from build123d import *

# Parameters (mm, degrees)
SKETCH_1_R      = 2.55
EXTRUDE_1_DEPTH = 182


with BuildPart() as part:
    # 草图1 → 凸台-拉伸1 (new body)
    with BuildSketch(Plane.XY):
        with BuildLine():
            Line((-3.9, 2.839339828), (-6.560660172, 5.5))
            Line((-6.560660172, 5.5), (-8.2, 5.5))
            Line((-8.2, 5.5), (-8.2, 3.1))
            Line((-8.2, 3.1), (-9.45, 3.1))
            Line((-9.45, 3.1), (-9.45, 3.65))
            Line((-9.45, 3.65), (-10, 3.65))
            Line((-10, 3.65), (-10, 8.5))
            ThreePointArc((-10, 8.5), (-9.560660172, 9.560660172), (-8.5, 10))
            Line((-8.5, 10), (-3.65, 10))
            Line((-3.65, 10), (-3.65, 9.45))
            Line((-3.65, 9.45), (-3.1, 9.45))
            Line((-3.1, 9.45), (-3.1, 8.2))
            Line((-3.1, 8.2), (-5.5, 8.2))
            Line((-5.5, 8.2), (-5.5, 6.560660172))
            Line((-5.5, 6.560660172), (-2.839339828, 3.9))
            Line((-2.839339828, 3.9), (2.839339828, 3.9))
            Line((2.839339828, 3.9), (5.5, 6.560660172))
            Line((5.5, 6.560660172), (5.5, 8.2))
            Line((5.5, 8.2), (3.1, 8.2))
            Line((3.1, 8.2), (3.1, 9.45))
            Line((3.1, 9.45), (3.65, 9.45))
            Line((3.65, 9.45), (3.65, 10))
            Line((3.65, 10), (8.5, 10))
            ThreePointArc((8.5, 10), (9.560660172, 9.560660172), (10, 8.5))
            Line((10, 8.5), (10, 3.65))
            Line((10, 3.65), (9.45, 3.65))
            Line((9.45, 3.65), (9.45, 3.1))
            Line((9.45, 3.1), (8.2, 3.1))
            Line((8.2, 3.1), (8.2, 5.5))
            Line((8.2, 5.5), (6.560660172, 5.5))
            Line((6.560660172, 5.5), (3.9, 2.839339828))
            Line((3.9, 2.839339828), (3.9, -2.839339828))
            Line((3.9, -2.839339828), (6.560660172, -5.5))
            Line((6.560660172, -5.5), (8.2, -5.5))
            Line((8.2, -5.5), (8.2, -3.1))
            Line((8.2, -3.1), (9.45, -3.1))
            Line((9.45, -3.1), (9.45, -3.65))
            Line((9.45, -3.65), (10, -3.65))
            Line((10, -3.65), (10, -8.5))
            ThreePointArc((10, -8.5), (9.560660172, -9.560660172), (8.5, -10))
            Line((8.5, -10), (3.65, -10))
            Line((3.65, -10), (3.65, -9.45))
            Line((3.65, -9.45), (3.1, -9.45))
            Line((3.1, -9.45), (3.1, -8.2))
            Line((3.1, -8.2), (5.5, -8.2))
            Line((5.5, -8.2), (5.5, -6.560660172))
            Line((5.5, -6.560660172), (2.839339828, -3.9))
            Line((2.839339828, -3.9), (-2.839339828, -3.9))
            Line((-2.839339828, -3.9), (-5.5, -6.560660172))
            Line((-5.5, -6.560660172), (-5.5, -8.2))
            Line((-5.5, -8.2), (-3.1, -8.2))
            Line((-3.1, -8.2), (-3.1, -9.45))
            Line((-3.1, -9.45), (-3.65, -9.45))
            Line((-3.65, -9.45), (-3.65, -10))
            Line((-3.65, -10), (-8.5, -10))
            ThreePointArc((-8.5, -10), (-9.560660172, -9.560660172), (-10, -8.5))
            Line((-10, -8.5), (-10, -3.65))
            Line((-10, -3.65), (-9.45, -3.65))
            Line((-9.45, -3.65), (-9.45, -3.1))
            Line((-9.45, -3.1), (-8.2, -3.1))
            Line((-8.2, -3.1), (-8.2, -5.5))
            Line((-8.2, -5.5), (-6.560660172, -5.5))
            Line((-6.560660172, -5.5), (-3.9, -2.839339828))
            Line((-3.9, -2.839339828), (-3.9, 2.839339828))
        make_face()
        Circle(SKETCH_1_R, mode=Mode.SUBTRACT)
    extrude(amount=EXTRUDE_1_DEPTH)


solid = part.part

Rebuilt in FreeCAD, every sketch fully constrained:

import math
import FreeCAD as App
import Part
import Sketcher
from FreeCAD import Vector
Q = App.Units.Quantity

doc = App.newDocument("Part")
body = doc.addObject("PartDesign::Body", "Body")

# Sketch on XY plane
sketch1 = body.newObject("Sketcher::SketchObject", "Sketch")
sketch1.AttachmentSupport = (doc.getObject("XY_Plane"), [""])
sketch1.MapMode = "FlatFace"
sketch1.addGeometry([
    Part.LineSegment(Vector(-6.6, 5.5, 0), Vector(-3.9, 2.8, 0)),  # 0
    Part.LineSegment(Vector(-3.9, 2.8, 0), Vector(-3.9, -2.8, 0)),  # 1
    Part.LineSegment(Vector(-3.9, -2.8, 0), Vector(-6.6, -5.5, 0)),  # 2
    Part.LineSegment(Vector(-6.6, -5.5, 0), Vector(-8.2, -5.5, 0)),  # 3
    Part.LineSegment(Vector(-8.2, -5.5, 0), Vector(-8.2, -3.1, 0)),  # 4
    Part.LineSegment(Vector(-8.2, -3.1, 0), Vector(-9.4, -3.1, 0)),  # 5
    Part.LineSegment(Vector(-9.4, -3.1, 0), Vector(-9.4, -3.6, 0)),  # 6
    Part.LineSegment(Vector(-9.4, -3.6, 0), Vector(-10, -3.6, 0)),  # 7
    Part.LineSegment(Vector(-10, -3.6, 0), Vector(-10, -8.5, 0)),  # 8
    Part.ArcOfCircle(Part.Circle(Vector(-8.5, -8.5, 0), Vector(0, 0, 1), 1.5), math.radians(180), math.radians(270)),  # 9
    Part.LineSegment(Vector(-8.5, -10, 0), Vector(-3.6, -10, 0)),  # 10
    Part.LineSegment(Vector(-3.6, -10, 0), Vector(-3.6, -9.4, 0)),  # 11
    Part.LineSegment(Vector(-3.6, -9.4, 0), Vector(-3.1, -9.4, 0)),  # 12
    Part.LineSegment(Vector(-3.1, -9.4, 0), Vector(-3.1, -8.2, 0)),  # 13
    Part.LineSegment(Vector(-3.1, -8.2, 0), Vector(-5.5, -8.2, 0)),  # 14
    Part.LineSegment(Vector(-5.5, -8.2, 0), Vector(-5.5, -6.6, 0)),  # 15
    Part.LineSegment(Vector(-5.5, -6.6, 0), Vector(-2.8, -3.9, 0)),  # 16
    Part.LineSegment(Vector(-2.8, -3.9, 0), Vector(2.8, -3.9, 0)),  # 17
    Part.LineSegment(Vector(2.8, -3.9, 0), Vector(5.5, -6.6, 0)),  # 18
    Part.LineSegment(Vector(5.5, -6.6, 0), Vector(5.5, -8.2, 0)),  # 19
    Part.LineSegment(Vector(5.5, -8.2, 0), Vector(3.1, -8.2, 0)),  # 20
    Part.LineSegment(Vector(3.1, -8.2, 0), Vector(3.1, -9.4, 0)),  # 21
    Part.LineSegment(Vector(3.1, -9.4, 0), Vector(3.6, -9.4, 0)),  # 22
    Part.LineSegment(Vector(3.6, -9.4, 0), Vector(3.6, -10, 0)),  # 23
    Part.LineSegment(Vector(3.6, -10, 0), Vector(8.5, -10, 0)),  # 24
    Part.ArcOfCircle(Part.Circle(Vector(8.5, -8.5, 0), Vector(0, 0, 1), 1.5), math.radians(-90), math.radians(0)),  # 25
    Part.LineSegment(Vector(10, -8.5, 0), Vector(10, -3.6, 0)),  # 26
    Part.LineSegment(Vector(10, -3.6, 0), Vector(9.4, -3.6, 0)),  # 27
    Part.LineSegment(Vector(9.4, -3.6, 0), Vector(9.4, -3.1, 0)),  # 28
    Part.LineSegment(Vector(9.4, -3.1, 0), Vector(8.2, -3.1, 0)),  # 29
    Part.LineSegment(Vector(8.2, -3.1, 0), Vector(8.2, -5.5, 0)),  # 30
    Part.LineSegment(Vector(8.2, -5.5, 0), Vector(6.6, -5.5, 0)),  # 31
    Part.LineSegment(Vector(6.6, -5.5, 0), Vector(3.9, -2.8, 0)),  # 32
    Part.LineSegment(Vector(3.9, -2.8, 0), Vector(3.9, 2.8, 0)),  # 33
    Part.LineSegment(Vector(3.9, 2.8, 0), Vector(6.6, 5.5, 0)),  # 34
    Part.LineSegment(Vector(6.6, 5.5, 0), Vector(8.2, 5.5, 0)),  # 35
    Part.LineSegment(Vector(8.2, 5.5, 0), Vector(8.2, 3.1, 0)),  # 36
    Part.LineSegment(Vector(8.2, 3.1, 0), Vector(9.4, 3.1, 0)),  # 37
    Part.LineSegment(Vector(9.4, 3.1, 0), Vector(9.4, 3.6, 0)),  # 38
    Part.LineSegment(Vector(9.4, 3.6, 0), Vector(10, 3.6, 0)),  # 39
    Part.LineSegment(Vector(10, 3.6, 0), Vector(10, 8.5, 0)),  # 40
    Part.ArcOfCircle(Part.Circle(Vector(8.5, 8.5, 0), Vector(0, 0, 1), 1.5), math.radians(0), math.radians(90)),  # 41
    Part.LineSegment(Vector(8.5, 10, 0), Vector(3.6, 10, 0)),  # 42
    Part.LineSegment(Vector(3.6, 10, 0), Vector(3.6, 9.4, 0)),  # 43
    Part.LineSegment(Vector(3.6, 9.4, 0), Vector(3.1, 9.4, 0)),  # 44
    Part.LineSegment(Vector(3.1, 9.4, 0), Vector(3.1, 8.2, 0)),  # 45
    Part.LineSegment(Vector(3.1, 8.2, 0), Vector(5.5, 8.2, 0)),  # 46
    Part.LineSegment(Vector(5.5, 8.2, 0), Vector(5.5, 6.6, 0)),  # 47
    Part.LineSegment(Vector(5.5, 6.6, 0), Vector(2.8, 3.9, 0)),  # 48
    Part.LineSegment(Vector(2.8, 3.9, 0), Vector(-2.8, 3.9, 0)),  # 49
    Part.LineSegment(Vector(-2.8, 3.9, 0), Vector(-5.5, 6.6, 0)),  # 50
    Part.LineSegment(Vector(-5.5, 6.6, 0), Vector(-5.5, 8.2, 0)),  # 51
    Part.LineSegment(Vector(-5.5, 8.2, 0), Vector(-3.1, 8.2, 0)),  # 52
    Part.LineSegment(Vector(-3.1, 8.2, 0), Vector(-3.1, 9.4, 0)),  # 53
    Part.LineSegment(Vector(-3.1, 9.4, 0), Vector(-3.6, 9.4, 0)),  # 54
    Part.LineSegment(Vector(-3.6, 9.4, 0), Vector(-3.6, 10, 0)),  # 55
    Part.LineSegment(Vector(-3.6, 10, 0), Vector(-8.5, 10, 0)),  # 56
    Part.ArcOfCircle(Part.Circle(Vector(-8.5, 8.5, 0), Vector(0, 0, 1), 1.5), math.radians(90), math.radians(180)),  # 57
    Part.LineSegment(Vector(-10, 8.5, 0), Vector(-10, 3.6, 0)),  # 58
    Part.LineSegment(Vector(-10, 3.6, 0), Vector(-9.4, 3.6, 0)),  # 59
    Part.LineSegment(Vector(-9.4, 3.6, 0), Vector(-9.4, 3.1, 0)),  # 60
    Part.LineSegment(Vector(-9.4, 3.1, 0), Vector(-8.2, 3.1, 0)),  # 61
    Part.LineSegment(Vector(-8.2, 3.1, 0), Vector(-8.2, 5.5, 0)),  # 62
    Part.LineSegment(Vector(-8.2, 5.5, 0), Vector(-6.6, 5.5, 0)),  # 63
    Part.Circle(Vector(0, 0, 0), Vector(0, 0, 1), 2.5),  # 64
], False)
sketch1.addConstraint([
    Sketcher.Constraint("Coincident", 0, 2, 1, 1),
    Sketcher.Constraint("Coincident", 1, 2, 2, 1),
    Sketcher.Constraint("Coincident", 2, 2, 3, 1),
    Sketcher.Constraint("Coincident", 3, 2, 4, 1),
    Sketcher.Constraint("Coincident", 4, 2, 5, 1),
    Sketcher.Constraint("Coincident", 5, 2, 6, 1),
    Sketcher.Constraint("Coincident", 6, 2, 7, 1),
    Sketcher.Constraint("Coincident", 7, 2, 8, 1),
    Sketcher.Constraint("Tangent", 8, 2, 9, 1),
    Sketcher.Constraint("Tangent", 9, 2, 10, 1),
    Sketcher.Constraint("Coincident", 10, 2, 11, 1),
    Sketcher.Constraint("Coincident", 11, 2, 12, 1),
    Sketcher.Constraint("Coincident", 12, 2, 13, 1),
    Sketcher.Constraint("Coincident", 13, 2, 14, 1),
    Sketcher.Constraint("Coincident", 14, 2, 15, 1),
    Sketcher.Constraint("Coincident", 15, 2, 16, 1),
    Sketcher.Constraint("Coincident", 16, 2, 17, 1),
    Sketcher.Constraint("Coincident", 17, 2, 18, 1),
    Sketcher.Constraint("Coincident", 18, 2, 19, 1),
    Sketcher.Constraint("Coincident", 19, 2, 20, 1),
    Sketcher.Constraint("Coincident", 20, 2, 21, 1),
    Sketcher.Constraint("Coincident", 21, 2, 22, 1),
    Sketcher.Constraint("Coincident", 22, 2, 23, 1),
    Sketcher.Constraint("Coincident", 23, 2, 24, 1),
    Sketcher.Constraint("Tangent", 24, 2, 25, 1),
    Sketcher.Constraint("Tangent", 25, 2, 26, 1),
    Sketcher.Constraint("Coincident", 26, 2, 27, 1),
    Sketcher.Constraint("Coincident", 27, 2, 28, 1),
    Sketcher.Constraint("Coincident", 28, 2, 29, 1),
    Sketcher.Constraint("Coincident", 29, 2, 30, 1),
    Sketcher.Constraint("Coincident", 30, 2, 31, 1),
    Sketcher.Constraint("Coincident", 31, 2, 32, 1),
    Sketcher.Constraint("Coincident", 32, 2, 33, 1),
    Sketcher.Constraint("Coincident", 33, 2, 34, 1),
    Sketcher.Constraint("Coincident", 34, 2, 35, 1),
    Sketcher.Constraint("Coincident", 35, 2, 36, 1),
    Sketcher.Constraint("Coincident", 36, 2, 37, 1),
    Sketcher.Constraint("Coincident", 37, 2, 38, 1),
    Sketcher.Constraint("Coincident", 38, 2, 39, 1),
    Sketcher.Constraint("Coincident", 39, 2, 40, 1),
    Sketcher.Constraint("Tangent", 40, 2, 41, 1),
    Sketcher.Constraint("Tangent", 41, 2, 42, 1),
    Sketcher.Constraint("Coincident", 42, 2, 43, 1),
    Sketcher.Constraint("Coincident", 43, 2, 44, 1),
    Sketcher.Constraint("Coincident", 44, 2, 45, 1),
    Sketcher.Constraint("Coincident", 45, 2, 46, 1),
    Sketcher.Constraint("Coincident", 46, 2, 47, 1),
    Sketcher.Constraint("Coincident", 47, 2, 48, 1),
    Sketcher.Constraint("Coincident", 48, 2, 49, 1),
    Sketcher.Constraint("Coincident", 49, 2, 50, 1),
    Sketcher.Constraint("Coincident", 50, 2, 51, 1),
    Sketcher.Constraint("Coincident", 51, 2, 52, 1),
    Sketcher.Constraint("Coincident", 52, 2, 53, 1),
    Sketcher.Constraint("Coincident", 53, 2, 54, 1),
    Sketcher.Constraint("Coincident", 54, 2, 55, 1),
    Sketcher.Constraint("Coincident", 55, 2, 56, 1),
    Sketcher.Constraint("Tangent", 56, 2, 57, 1),
    Sketcher.Constraint("Tangent", 57, 2, 58, 1),
    Sketcher.Constraint("Coincident", 58, 2, 59, 1),
    Sketcher.Constraint("Coincident", 59, 2, 60, 1),
    Sketcher.Constraint("Coincident", 60, 2, 61, 1),
    Sketcher.Constraint("Coincident", 61, 2, 62, 1),
    Sketcher.Constraint("Coincident", 62, 2, 63, 1),
    Sketcher.Constraint("Coincident", 63, 2, 0, 1),
    Sketcher.Constraint("Vertical", 1),
    Sketcher.Constraint("Horizontal", 3),
    Sketcher.Constraint("Vertical", 4),
    Sketcher.Constraint("Horizontal", 5),
    Sketcher.Constraint("Vertical", 6),
    Sketcher.Constraint("Horizontal", 7),
    Sketcher.Constraint("Vertical", 8),
    Sketcher.Constraint("Horizontal", 10),
    Sketcher.Constraint("Vertical", 11),
    Sketcher.Constraint("Horizontal", 12),
    Sketcher.Constraint("Vertical", 13),
    Sketcher.Constraint("Horizontal", 14),
    Sketcher.Constraint("Vertical", 15),
    Sketcher.Constraint("Horizontal", 17),
    Sketcher.Constraint("Vertical", 19),
    Sketcher.Constraint("Horizontal", 20),
    Sketcher.Constraint("Vertical", 21),
    Sketcher.Constraint("Horizontal", 22),
    Sketcher.Constraint("Vertical", 23),
    Sketcher.Constraint("Horizontal", 24),
    Sketcher.Constraint("Vertical", 26),
    Sketcher.Constraint("Horizontal", 27),
    Sketcher.Constraint("Vertical", 28),
    Sketcher.Constraint("Horizontal", 29),
    Sketcher.Constraint("Vertical", 30),
    Sketcher.Constraint("Horizontal", 31),
    Sketcher.Constraint("Vertical", 33),
    Sketcher.Constraint("Horizontal", 35),
    Sketcher.Constraint("Vertical", 36),
    Sketcher.Constraint("Horizontal", 37),
    Sketcher.Constraint("Vertical", 38),
    Sketcher.Constraint("Horizontal", 39),
    Sketcher.Constraint("Vertical", 40),
    Sketcher.Constraint("Horizontal", 42),
    Sketcher.Constraint("Vertical", 43),
    Sketcher.Constraint("Horizontal", 44),
    Sketcher.Constraint("Vertical", 45),
    Sketcher.Constraint("Horizontal", 46),
    Sketcher.Constraint("Vertical", 47),
    Sketcher.Constraint("Horizontal", 49),
    Sketcher.Constraint("Vertical", 51),
    Sketcher.Constraint("Horizontal", 52),
    Sketcher.Constraint("Vertical", 53),
    Sketcher.Constraint("Horizontal", 54),
    Sketcher.Constraint("Vertical", 55),
    Sketcher.Constraint("Horizontal", 56),
    Sketcher.Constraint("Vertical", 58),
    Sketcher.Constraint("Horizontal", 59),
    Sketcher.Constraint("Vertical", 60),
    Sketcher.Constraint("Horizontal", 61),
    Sketcher.Constraint("Vertical", 62),
    Sketcher.Constraint("Horizontal", 63),
    Sketcher.Constraint("Coincident", 64, 3, -1, 1),
    Sketcher.Constraint("Equal", 9, 25),
    Sketcher.Constraint("Equal", 25, 41),
    Sketcher.Constraint("Equal", 41, 57),
    Sketcher.Constraint("Symmetric", 9, 3, 41, 3, -1, 1),
    Sketcher.Constraint("Symmetric", 25, 3, 57, 3, -1, 1),
    Sketcher.Constraint("Symmetric", 0, 2, 32, 2, -1, 1),
    Sketcher.Constraint("Symmetric", 2, 2, 34, 2, -1, 1),
    Sketcher.Constraint("Symmetric", 4, 2, 36, 2, -1, 1),
    Sketcher.Constraint("Symmetric", 6, 2, 38, 2, -1, 1),
    Sketcher.Constraint("Symmetric", 11, 2, 43, 2, -1, 1),
    Sketcher.Constraint("Symmetric", 13, 2, 45, 2, -1, 1),
    Sketcher.Constraint("Symmetric", 15, 2, 47, 2, -1, 1),
    Sketcher.Constraint("Symmetric", 16, 2, 48, 2, -1, 1),
    Sketcher.Constraint("Symmetric", 18, 2, 50, 2, -1, 1),
    Sketcher.Constraint("Symmetric", 20, 2, 52, 2, -1, 1),
    Sketcher.Constraint("Symmetric", 22, 2, 54, 2, -1, 1),
    Sketcher.Constraint("Symmetric", 27, 2, 59, 2, -1, 1),
    Sketcher.Constraint("Symmetric", 29, 2, 61, 2, -1, 1),
    Sketcher.Constraint("Symmetric", 31, 2, 63, 2, -1, 1),
    Sketcher.Constraint("Symmetric", 9, 3, 25, 3, -2),
    Sketcher.Constraint("Symmetric", 15, 2, 18, 2, -2),
    Sketcher.Constraint("Symmetric", 13, 2, 20, 2, -2),
    Sketcher.Constraint("Symmetric", 11, 2, 22, 2, -2),
    Sketcher.Constraint("Symmetric", 6, 2, 27, 2, -2),
    Sketcher.Constraint("Symmetric", 4, 2, 29, 2, -2),
    Sketcher.Constraint("Symmetric", 2, 2, 31, 2, -2),
    Sketcher.Constraint("Perpendicular", 0, 2),
    Sketcher.Constraint("Parallel", 2, 16),
    Sketcher.Constraint("Perpendicular", 16, 18),
    Sketcher.Constraint("Perpendicular", 32, 34),
    Sketcher.Constraint("Perpendicular", 48, 50),
    Sketcher.Constraint("Horizontal", 1, 2, 32, 2),
    Sketcher.Constraint("Equal", 7, 12),
    Sketcher.Constraint("Equal", 49, 1),
    Sketcher.Constraint("Equal", 52, 4),
    Sketcher.Constraint("Equal", 59, 6),
    Sketcher.Constraint("Equal", 56, 8),
    Sketcher.Constraint("Equal", 6, 11),
    Sketcher.Constraint("Equal", 61, 13),
    Sketcher.Constraint("Equal", 63, 15),
    Sketcher.Constraint("Equal", 2, 16),
    Sketcher.Constraint("Diameter", 64, Q("5.1 mm")),
    Sketcher.Constraint("Radius", 9, Q("1.5 mm")),
    Sketcher.Constraint("DistanceX", 14, 2, 14, 1, Q("2.4 mm")),
    Sketcher.Constraint("DistanceX", 7, 2, -1, 1, Q("10 mm")),
    Sketcher.Constraint("DistanceX", 5, 2, 5, 1, Q("1.25 mm")),
    Sketcher.Constraint("DistanceX", 7, 2, 7, 1, Q("0.55 mm")),
    Sketcher.Constraint("DistanceX", 10, 1, 10, 2, Q("4.85 mm")),
    Sketcher.Constraint("DistanceX", 0, 2, -1, 1, Q("3.9 mm")),
    Sketcher.Constraint("DistanceX", 3, 2, 3, 1, Q("1.63934 mm")),
])
pad1 = body.newObject("PartDesign::Pad", "Pad")
pad1.Profile = sketch1
pad1.Length = 182

doc.recompute()
